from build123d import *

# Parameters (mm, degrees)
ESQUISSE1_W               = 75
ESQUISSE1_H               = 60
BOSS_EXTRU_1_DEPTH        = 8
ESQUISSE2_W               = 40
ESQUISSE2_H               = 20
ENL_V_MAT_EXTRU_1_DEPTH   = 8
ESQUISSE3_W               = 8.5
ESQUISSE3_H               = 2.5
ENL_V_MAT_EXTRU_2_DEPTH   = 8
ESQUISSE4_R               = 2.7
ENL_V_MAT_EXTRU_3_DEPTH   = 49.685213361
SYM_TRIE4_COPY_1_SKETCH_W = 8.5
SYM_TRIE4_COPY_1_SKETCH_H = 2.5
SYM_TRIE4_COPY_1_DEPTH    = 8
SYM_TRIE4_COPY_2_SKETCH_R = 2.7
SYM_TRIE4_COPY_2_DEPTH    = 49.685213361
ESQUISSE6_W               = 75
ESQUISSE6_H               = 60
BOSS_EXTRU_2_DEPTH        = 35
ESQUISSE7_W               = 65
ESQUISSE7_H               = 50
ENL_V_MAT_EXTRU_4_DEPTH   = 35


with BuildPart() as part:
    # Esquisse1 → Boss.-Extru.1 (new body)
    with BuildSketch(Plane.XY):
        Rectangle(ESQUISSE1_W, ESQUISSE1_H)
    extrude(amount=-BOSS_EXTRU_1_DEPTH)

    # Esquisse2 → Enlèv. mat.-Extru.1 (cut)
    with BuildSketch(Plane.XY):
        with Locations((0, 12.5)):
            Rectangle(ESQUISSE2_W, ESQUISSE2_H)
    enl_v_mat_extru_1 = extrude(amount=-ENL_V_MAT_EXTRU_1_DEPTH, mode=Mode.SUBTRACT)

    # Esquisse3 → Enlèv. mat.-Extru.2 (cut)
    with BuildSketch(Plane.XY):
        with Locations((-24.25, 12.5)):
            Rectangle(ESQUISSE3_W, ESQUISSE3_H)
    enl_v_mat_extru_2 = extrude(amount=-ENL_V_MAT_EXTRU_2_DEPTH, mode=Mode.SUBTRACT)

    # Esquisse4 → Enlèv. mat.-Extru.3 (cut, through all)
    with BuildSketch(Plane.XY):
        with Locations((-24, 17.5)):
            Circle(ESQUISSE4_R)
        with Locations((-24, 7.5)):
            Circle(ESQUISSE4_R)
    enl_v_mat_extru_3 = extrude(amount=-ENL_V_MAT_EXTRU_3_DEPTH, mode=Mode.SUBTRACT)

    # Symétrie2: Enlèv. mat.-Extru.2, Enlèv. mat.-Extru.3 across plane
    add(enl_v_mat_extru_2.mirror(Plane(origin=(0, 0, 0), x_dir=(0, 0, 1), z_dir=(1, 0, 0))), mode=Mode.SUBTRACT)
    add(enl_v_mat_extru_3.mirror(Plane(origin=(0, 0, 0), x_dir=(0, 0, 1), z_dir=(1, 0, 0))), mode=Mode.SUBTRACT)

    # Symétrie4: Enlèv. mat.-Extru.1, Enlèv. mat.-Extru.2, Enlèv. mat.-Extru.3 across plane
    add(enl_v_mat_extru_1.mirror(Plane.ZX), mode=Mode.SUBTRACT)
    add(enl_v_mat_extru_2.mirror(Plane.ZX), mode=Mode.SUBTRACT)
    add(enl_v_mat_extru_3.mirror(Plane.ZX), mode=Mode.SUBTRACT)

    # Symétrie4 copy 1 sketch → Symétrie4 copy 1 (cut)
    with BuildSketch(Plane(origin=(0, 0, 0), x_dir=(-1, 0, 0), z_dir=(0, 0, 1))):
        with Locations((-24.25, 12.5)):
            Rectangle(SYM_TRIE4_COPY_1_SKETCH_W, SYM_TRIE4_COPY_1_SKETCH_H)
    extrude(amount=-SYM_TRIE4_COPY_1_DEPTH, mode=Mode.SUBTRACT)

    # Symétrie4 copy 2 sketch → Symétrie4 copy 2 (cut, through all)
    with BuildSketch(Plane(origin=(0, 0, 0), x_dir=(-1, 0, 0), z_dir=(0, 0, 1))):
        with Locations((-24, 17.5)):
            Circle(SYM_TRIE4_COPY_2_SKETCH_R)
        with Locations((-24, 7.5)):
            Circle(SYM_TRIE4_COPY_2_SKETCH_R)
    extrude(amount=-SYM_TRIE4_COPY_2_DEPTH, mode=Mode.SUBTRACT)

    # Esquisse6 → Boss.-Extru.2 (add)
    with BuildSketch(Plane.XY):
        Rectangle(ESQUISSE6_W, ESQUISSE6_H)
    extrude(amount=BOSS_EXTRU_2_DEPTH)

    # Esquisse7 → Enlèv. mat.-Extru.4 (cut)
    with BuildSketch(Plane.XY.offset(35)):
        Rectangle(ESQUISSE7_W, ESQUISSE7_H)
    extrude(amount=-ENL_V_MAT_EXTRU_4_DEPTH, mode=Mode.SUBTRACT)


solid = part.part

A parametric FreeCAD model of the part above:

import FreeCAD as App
import Part
import Sketcher
Q = App.Units.Quantity

doc = App.newDocument("Part")
params = doc.addObject("Spreadsheet::Sheet", "Params")
for row, (alias, value) in enumerate([
    ("sketch1_width", "75 mm"),
    ("sketch1_height", "60 mm"),
    ("pad1_length", "8 mm"),
    ("sketch2_width", "40 mm"),
    ("sketch2_height", "20 mm"),
    ("pocket1_length", "8 mm"),
    ("sketch3_width", "8.5 mm"),
    ("sketch3_height", "2.5 mm"),
    ("pocket2_length", "8 mm"),
    ("sketch4_diameter", "5.4 mm"),
    ("sketch5_width", "8.5 mm"),
    ("sketch5_height", "2.5 mm"),
    ("pocket4_length", "8 mm"),
    ("sketch6_diameter", "5.4 mm"),
    ("sketch7_width", "75 mm"),
    ("sketch7_height", "60 mm"),
    ("pad2_length", "35 mm"),
    ("sketch8_width", "65 mm"),
    ("sketch8_height", "50 mm"),
    ("pocket6_length", "35 mm"),
], start=1):
    params.set(f"A{row}", alias)
    params.set(f"B{row}", "=" + value)
    params.setAlias(f"B{row}", alias)

body = doc.addObject("PartDesign::Body", "Body")

# Sketch on XY plane
sketch1 = body.newObject("Sketcher::SketchObject", "Sketch")
sketch1.AttachmentSupport = (doc.getObject("XY_Plane"), [""])
sketch1.MapMode = "FlatFace"
sketch1.addGeometry(Part.LineSegment(App.Vector(-38, 30, 0), App.Vector(-38, -30, 0)), False)
sketch1.addGeometry(Part.LineSegment(App.Vector(-38, -30, 0), App.Vector(38, -30, 0)), False)
sketch1.addGeometry(Part.LineSegment(App.Vector(38, -30, 0), App.Vector(38, 30, 0)), False)
sketch1.addGeometry(Part.LineSegment(App.Vector(38, 30, 0), App.Vector(-38, 30, 0)), False)
sketch1.addConstraint(Sketcher.Constraint("Coincident", 0, 2, 1, 1))
sketch1.addConstraint(Sketcher.Constraint("Coincident", 1, 2, 2, 1))
sketch1.addConstraint(Sketcher.Constraint("Coincident", 2, 2, 3, 1))
sketch1.addConstraint(Sketcher.Constraint("Coincident", 3, 2, 0, 1))
sketch1.addConstraint(Sketcher.Constraint("Vertical", 0))
sketch1.addConstraint(Sketcher.Constraint("Horizontal", 1))
sketch1.addConstraint(Sketcher.Constraint("Vertical", 2))
sketch1.addConstraint(Sketcher.Constraint("Horizontal", 3))
sketch1.addConstraint(Sketcher.Constraint("Symmetric", 0, 2, 2, 2, -1, 1))
sketch1.addConstraint(Sketcher.Constraint("DistanceX", 1, 1, 1, 2, Q("75 mm")))
sketch1.addConstraint(Sketcher.Constraint("DistanceY", 0, 2, 0, 1, Q("60 mm")))
sketch1.setExpression("Constraints[9]", "Params.sketch1_width")
sketch1.setExpression("Constraints[10]", "Params.sketch1_height")
pad1 = body.newObject("PartDesign::Pad", "Pad")
pad1.Profile = sketch1
pad1.setExpression("Length", "Params.pad1_length")
pad1.Reversed = True

# Sketch on XY plane
sketch2 = body.newObject("Sketcher::SketchObject", "Sketch001")
sketch2.AttachmentSupport = (doc.getObject("XY_Plane"), [""])
sketch2.MapMode = "FlatFace"
sketch2.addGeometry(Part.LineSegment(App.Vector(-20, 22, 0), App.Vector(-20, 2, 0)), False)
sketch2.addGeometry(Part.LineSegment(App.Vector(-20, 2, 0), App.Vector(20, 2, 0)), False)
sketch2.addGeometry(Part.LineSegment(App.Vector(20, 2, 0), App.Vector(20, 22, 0)), False)
sketch2.addGeometry(Part.LineSegment(App.Vector(20, 22, 0), App.Vector(-20, 22, 0)), False)
sketch2.addConstraint(Sketcher.Constraint("Coincident", 0, 2, 1, 1))
sketch2.addConstraint(Sketcher.Constraint("Coincident", 1, 2, 2, 1))
sketch2.addConstraint(Sketcher.Constraint("Coincident", 2, 2, 3, 1))
sketch2.addConstraint(Sketcher.Constraint("Coincident", 3, 2, 0, 1))
sketch2.addConstraint(Sketcher.Constraint("Vertical", 0))
sketch2.addConstraint(Sketcher.Constraint("Horizontal", 1))
sketch2.addConstraint(Sketcher.Constraint("Vertical", 2))
sketch2.addConstraint(Sketcher.Constraint("Horizontal", 3))
sketch2.addConstraint(Sketcher.Constraint("DistanceX", 1, 1, 1, 2, Q("40 mm")))
sketch2.addConstraint(Sketcher.Constraint("DistanceY", 0, 2, 0, 1, Q("20 mm")))
sketch2.addConstraint(Sketcher.Constraint("DistanceX", 0, 2, -1, 1, Q("20 mm")))
sketch2.addConstraint(Sketcher.Constraint("DistanceY", -1, 1, 0, 2, Q("2.5 mm")))
sketch2.setExpression("Constraints[8]", "Params.sketch2_width")
sketch2.setExpression("Constraints[9]", "Params.sketch2_height")
pocket1 = body.newObject("PartDesign::Pocket", "Pocket")
pocket1.Profile = sketch2
pocket1.setExpression("Length", "Params.pocket1_length")

# Sketch on XY plane
sketch3 = body.newObject("Sketcher::SketchObject", "Sketch002")
sketch3.AttachmentSupport = (doc.getObject("XY_Plane"), [""])
sketch3.MapMode = "FlatFace"
sketch3.addGeometry(Part.LineSegment(App.Vector(-28.5, 13.8, 0), App.Vector(-28.5, 11.2, 0)), False)
sketch3.addGeometry(Part.LineSegment(App.Vector(-28.5, 11.2, 0), App.Vector(-20, 11.2, 0)), False)
sketch3.addGeometry(Part.LineSegment(App.Vector(-20, 11.2, 0), App.Vector(-20, 13.8, 0)), False)
sketch3.addGeometry(Part.LineSegment(App.Vector(-20, 13.8, 0), App.Vector(-28.5, 13.8, 0)), False)
sketch3.addConstraint(Sketcher.Constraint("Coincident", 0, 2, 1, 1))
sketch3.addConstraint(Sketcher.Constraint("Coincident", 1, 2, 2, 1))
sketch3.addConstraint(Sketcher.Constraint("Coincident", 2, 2, 3, 1))
sketch3.addConstraint(Sketcher.Constraint("Coincident", 3, 2, 0, 1))
sketch3.addConstraint(Sketcher.Constraint("Vertical", 0))
sketch3.addConstraint(Sketcher.Constraint("Horizontal", 1))
sketch3.addConstraint(Sketcher.Constraint("Vertical", 2))
sketch3.addConstraint(Sketcher.Constraint("Horizontal", 3))
sketch3.addConstraint(Sketcher.Constraint("DistanceX", 1, 1, 1, 2, Q("8.5 mm")))
sketch3.addConstraint(Sketcher.Constraint("DistanceY", 0, 2, 0, 1, Q("2.5 mm")))
sketch3.addConstraint(Sketcher.Constraint("DistanceX", 1, 2, -1, 1, Q("20 mm")))
sketch3.addConstraint(Sketcher.Constraint("DistanceY", -1, 1, 0, 2, Q("11.25 mm")))
sketch3.setExpression("Constraints[8]", "Params.sketch3_width")
sketch3.setExpression("Constraints[9]", "Params.sketch3_height")
pocket2 = body.newObject("PartDesign::Pocket", "Pocket001")
pocket2.Profile = sketch3
pocket2.setExpression("Length", "Params.pocket2_length")

# Sketch on XY plane
sketch4 = body.newObject("Sketcher::SketchObject", "Sketch003")
sketch4.AttachmentSupport = (doc.getObject("XY_Plane"), [""])
sketch4.MapMode = "FlatFace"
sketch4.addGeometry(Part.Circle(App.Vector(-24, 17.5, 0), App.Vector(0, 0, 1), 2.7), False)
sketch4.addGeometry(Part.Circle(App.Vector(-24, 7.5, 0), App.Vector(0, 0, 1), 2.7), False)
sketch4.addConstraint(Sketcher.Constraint("Equal", 0, 1))
sketch4.addConstraint(Sketcher.Constraint("Vertical", 0, 3, 1, 3))
sketch4.addConstraint(Sketcher.Constraint("Diameter", 0, Q("5.4 mm")))
sketch4.addConstraint(Sketcher.Constraint("DistanceX", 0, 3, -1, 1, Q("24 mm")))
sketch4.addConstraint(Sketcher.Constraint("DistanceY", 1, 3, 0, 3, Q("10 mm")))
sketch4.addConstraint(Sketcher.Constraint("DistanceY", -1, 1, 0, 3, Q("17.5 mm")))
sketch4.setExpression("Constraints[2]", "Params.sketch4_diameter")
pocket3 = body.newObject("PartDesign::Pocket", "Pocket002")
pocket3.Profile = sketch4
pocket3.Type = "ThroughAll"
doc.recompute()

mirrored = body.newObject("PartDesign::Mirrored", "Mirrored")
mirrored.Originals = [pocket2, pocket3]
mirrored.MirrorPlane = (doc.getObject("YZ_Plane"), [""])
body.Tip = mirrored
doc.recompute()

mirrored2 = body.newObject("PartDesign::Mirrored", "Mirrored001")
mirrored2.Originals = [pocket1, pocket2, pocket3]
mirrored2.MirrorPlane = (doc.getObject("XZ_Plane"), [""])
body.Tip = mirrored2

# Sketch on XY plane
sketch5 = body.newObject("Sketcher::SketchObject", "Sketch004")
sketch5.AttachmentSupport = (doc.getObject("XY_Plane"), [""])
sketch5.MapMode = "FlatFace"
sketch5.addGeometry(Part.LineSegment(App.Vector(28.5, -13.8, 0), App.Vector(28.5, -11.2, 0)), False)
sketch5.addGeometry(Part.LineSegment(App.Vector(28.5, -11.2, 0), App.Vector(20, -11.2, 0)), False)
sketch5.addGeometry(Part.LineSegment(App.Vector(20, -11.2, 0), App.Vector(20, -13.8, 0)), False)
sketch5.addGeometry(Part.LineSegment(App.Vector(20, -13.8, 0), App.Vector(28.5, -13.8, 0)), False)
sketch5.addConstraint(Sketcher.Constraint("Coincident", 0, 2, 1, 1))
sketch5.addConstraint(Sketcher.Constraint("Coincident", 1, 2, 2, 1))
sketch5.addConstraint(Sketcher.Constraint("Coincident", 2, 2, 3, 1))
sketch5.addConstraint(Sketcher.Constraint("Coincident", 3, 2, 0, 1))
sketch5.addConstraint(Sketcher.Constraint("Vertical", 0))
sketch5.addConstraint(Sketcher.Constraint("Horizontal", 1))
sketch5.addConstraint(Sketcher.Constraint("Vertical", 2))
sketch5.addConstraint(Sketcher.Constraint("Horizontal", 3))
sketch5.addConstraint(Sketcher.Constraint("DistanceX", 1, 2, 1, 1, Q("8.5 mm")))
sketch5.addConstraint(Sketcher.Constraint("DistanceY", 0, 1, 0, 2, Q("2.5 mm")))
sketch5.addConstraint(Sketcher.Constraint("DistanceX", -1, 1, 1, 2, Q("20 mm")))
sketch5.addConstraint(Sketcher.Constraint("DistanceY", 0, 2, -1, 1, Q("11.25 mm")))
sketch5.setExpression("Constraints[8]", "Params.sketch5_width")
sketch5.setExpression("Constraints[9]", "Params.sketch5_height")
pocket4 = body.newObject("PartDesign::Pocket", "Pocket003")
pocket4.Profile = sketch5
pocket4.setExpression("Length", "Params.pocket4_length")

# Sketch on XY plane
sketch6 = body.newObject("Sketcher::SketchObject", "Sketch005")
sketch6.AttachmentSupport = (doc.getObject("XY_Plane"), [""])
sketch6.MapMode = "FlatFace"
sketch6.addGeometry(Part.Circle(App.Vector(24, -17.5, 0), App.Vector(0, 0, 1), 2.7), False)
sketch6.addGeometry(Part.Circle(App.Vector(24, -7.5, 0), App.Vector(0, 0, 1), 2.7), False)
sketch6.addConstraint(Sketcher.Constraint("Equal", 0, 1))
sketch6.addConstraint(Sketcher.Constraint("Vertical", 0, 3, 1, 3))
sketch6.addConstraint(Sketcher.Constraint("Diameter", 0, Q("5.4 mm")))
sketch6.addConstraint(Sketcher.Constraint("DistanceX", -1, 1, 0, 3, Q("24 mm")))
sketch6.addConstraint(Sketcher.Constraint("DistanceY", 0, 3, 1, 3, Q("10 mm")))
sketch6.addConstraint(Sketcher.Constraint("DistanceY", 0, 3, -1, 1, Q("17.5 mm")))
sketch6.setExpression("Constraints[2]", "Params.sketch6_diameter")
pocket5 = body.newObject("PartDesign::Pocket", "Pocket004")
pocket5.Profile = sketch6
pocket5.Type = "ThroughAll"

# Sketch on XY plane
sketch7 = body.newObject("Sketcher::SketchObject", "Sketch006")
sketch7.AttachmentSupport = (doc.getObject("XY_Plane"), [""])
sketch7.MapMode = "FlatFace"
sketch7.addGeometry(Part.LineSegment(App.Vector(-38, 30, 0), App.Vector(-38, -30, 0)), False)
sketch7.addGeometry(Part.LineSegment(App.Vector(-38, -30, 0), App.Vector(38, -30, 0)), False)
sketch7.addGeometry(Part.LineSegment(App.Vector(38, -30, 0), App.Vector(38, 30, 0)), False)
sketch7.addGeometry(Part.LineSegment(App.Vector(38, 30, 0), App.Vector(-38, 30, 0)), False)
sketch7.addConstraint(Sketcher.Constraint("Coincident", 0, 2, 1, 1))
sketch7.addConstraint(Sketcher.Constraint("Coincident", 1, 2, 2, 1))
sketch7.addConstraint(Sketcher.Constraint("Coincident", 2, 2, 3, 1))
sketch7.addConstraint(Sketcher.Constraint("Coincident", 3, 2, 0, 1))
sketch7.addConstraint(Sketcher.Constraint("Vertical", 0))
sketch7.addConstraint(Sketcher.Constraint("Horizontal", 1))
sketch7.addConstraint(Sketcher.Constraint("Vertical", 2))
sketch7.addConstraint(Sketcher.Constraint("Horizontal", 3))
sketch7.addConstraint(Sketcher.Constraint("Symmetric", 0, 2, 2, 2, -1, 1))
sketch7.addConstraint(Sketcher.Constraint("DistanceX", 1, 1, 1, 2, Q("75 mm")))
sketch7.addConstraint(Sketcher.Constraint("DistanceY", 0, 2, 0, 1, Q("60 mm")))
sketch7.setExpression("Constraints[9]", "Params.sketch7_width")
sketch7.setExpression("Constraints[10]", "Params.sketch7_height")
pad2 = body.newObject("PartDesign::Pad", "Pad001")
pad2.Profile = sketch7
pad2.setExpression("Length", "Params.pad2_length")

# Sketch on XY plane
sketch8 = body.newObject("Sketcher::SketchObject", "Sketch007")
sketch8.AttachmentSupport = (doc.getObject("XY_Plane"), [""])
sketch8.MapMode = "FlatFace"
sketch8.AttachmentOffset = App.Placement(App.Vector(0, 0, 35), App.Rotation())
sketch8.addGeometry(Part.LineSegment(App.Vector(-32, 25, 0), App.Vector(-32, -25, 0)), False)
sketch8.addGeometry(Part.LineSegment(App.Vector(-32, -25, 0), App.Vector(32, -25, 0)), False)
sketch8.addGeometry(Part.LineSegment(App.Vector(32, -25, 0), App.Vector(32, 25, 0)), False)
sketch8.addGeometry(Part.LineSegment(App.Vector(32, 25, 0), App.Vector(-32, 25, 0)), False)
sketch8.addConstraint(Sketcher.Constraint("Coincident", 0, 2, 1, 1))
sketch8.addConstraint(Sketcher.Constraint("Coincident", 1, 2, 2, 1))
sketch8.addConstraint(Sketcher.Constraint("Coincident", 2, 2, 3, 1))
sketch8.addConstraint(Sketcher.Constraint("Coincident", 3, 2, 0, 1))
sketch8.addConstraint(Sketcher.Constraint("Vertical", 0))
sketch8.addConstraint(Sketcher.Constraint("Horizontal", 1))
sketch8.addConstraint(Sketcher.Constraint("Vertical", 2))
sketch8.addConstraint(Sketcher.Constraint("Horizontal", 3))
sketch8.addConstraint(Sketcher.Constraint("Symmetric", 0, 2, 2, 2, -1, 1))
sketch8.addConstraint(Sketcher.Constraint("DistanceX", 1, 1, 1, 2, Q("65 mm")))
sketch8.addConstraint(Sketcher.Constraint("DistanceY", 0, 2, 0, 1, Q("50 mm")))
sketch8.setExpression("Constraints[9]", "Params.sketch8_width")
sketch8.setExpression("Constraints[10]", "Params.sketch8_height")
pocket6 = body.newObject("PartDesign::Pocket", "Pocket005")
pocket6.Profile = sketch8
pocket6.setExpression("Length", "Params.pocket6_length")

doc.recompute()
